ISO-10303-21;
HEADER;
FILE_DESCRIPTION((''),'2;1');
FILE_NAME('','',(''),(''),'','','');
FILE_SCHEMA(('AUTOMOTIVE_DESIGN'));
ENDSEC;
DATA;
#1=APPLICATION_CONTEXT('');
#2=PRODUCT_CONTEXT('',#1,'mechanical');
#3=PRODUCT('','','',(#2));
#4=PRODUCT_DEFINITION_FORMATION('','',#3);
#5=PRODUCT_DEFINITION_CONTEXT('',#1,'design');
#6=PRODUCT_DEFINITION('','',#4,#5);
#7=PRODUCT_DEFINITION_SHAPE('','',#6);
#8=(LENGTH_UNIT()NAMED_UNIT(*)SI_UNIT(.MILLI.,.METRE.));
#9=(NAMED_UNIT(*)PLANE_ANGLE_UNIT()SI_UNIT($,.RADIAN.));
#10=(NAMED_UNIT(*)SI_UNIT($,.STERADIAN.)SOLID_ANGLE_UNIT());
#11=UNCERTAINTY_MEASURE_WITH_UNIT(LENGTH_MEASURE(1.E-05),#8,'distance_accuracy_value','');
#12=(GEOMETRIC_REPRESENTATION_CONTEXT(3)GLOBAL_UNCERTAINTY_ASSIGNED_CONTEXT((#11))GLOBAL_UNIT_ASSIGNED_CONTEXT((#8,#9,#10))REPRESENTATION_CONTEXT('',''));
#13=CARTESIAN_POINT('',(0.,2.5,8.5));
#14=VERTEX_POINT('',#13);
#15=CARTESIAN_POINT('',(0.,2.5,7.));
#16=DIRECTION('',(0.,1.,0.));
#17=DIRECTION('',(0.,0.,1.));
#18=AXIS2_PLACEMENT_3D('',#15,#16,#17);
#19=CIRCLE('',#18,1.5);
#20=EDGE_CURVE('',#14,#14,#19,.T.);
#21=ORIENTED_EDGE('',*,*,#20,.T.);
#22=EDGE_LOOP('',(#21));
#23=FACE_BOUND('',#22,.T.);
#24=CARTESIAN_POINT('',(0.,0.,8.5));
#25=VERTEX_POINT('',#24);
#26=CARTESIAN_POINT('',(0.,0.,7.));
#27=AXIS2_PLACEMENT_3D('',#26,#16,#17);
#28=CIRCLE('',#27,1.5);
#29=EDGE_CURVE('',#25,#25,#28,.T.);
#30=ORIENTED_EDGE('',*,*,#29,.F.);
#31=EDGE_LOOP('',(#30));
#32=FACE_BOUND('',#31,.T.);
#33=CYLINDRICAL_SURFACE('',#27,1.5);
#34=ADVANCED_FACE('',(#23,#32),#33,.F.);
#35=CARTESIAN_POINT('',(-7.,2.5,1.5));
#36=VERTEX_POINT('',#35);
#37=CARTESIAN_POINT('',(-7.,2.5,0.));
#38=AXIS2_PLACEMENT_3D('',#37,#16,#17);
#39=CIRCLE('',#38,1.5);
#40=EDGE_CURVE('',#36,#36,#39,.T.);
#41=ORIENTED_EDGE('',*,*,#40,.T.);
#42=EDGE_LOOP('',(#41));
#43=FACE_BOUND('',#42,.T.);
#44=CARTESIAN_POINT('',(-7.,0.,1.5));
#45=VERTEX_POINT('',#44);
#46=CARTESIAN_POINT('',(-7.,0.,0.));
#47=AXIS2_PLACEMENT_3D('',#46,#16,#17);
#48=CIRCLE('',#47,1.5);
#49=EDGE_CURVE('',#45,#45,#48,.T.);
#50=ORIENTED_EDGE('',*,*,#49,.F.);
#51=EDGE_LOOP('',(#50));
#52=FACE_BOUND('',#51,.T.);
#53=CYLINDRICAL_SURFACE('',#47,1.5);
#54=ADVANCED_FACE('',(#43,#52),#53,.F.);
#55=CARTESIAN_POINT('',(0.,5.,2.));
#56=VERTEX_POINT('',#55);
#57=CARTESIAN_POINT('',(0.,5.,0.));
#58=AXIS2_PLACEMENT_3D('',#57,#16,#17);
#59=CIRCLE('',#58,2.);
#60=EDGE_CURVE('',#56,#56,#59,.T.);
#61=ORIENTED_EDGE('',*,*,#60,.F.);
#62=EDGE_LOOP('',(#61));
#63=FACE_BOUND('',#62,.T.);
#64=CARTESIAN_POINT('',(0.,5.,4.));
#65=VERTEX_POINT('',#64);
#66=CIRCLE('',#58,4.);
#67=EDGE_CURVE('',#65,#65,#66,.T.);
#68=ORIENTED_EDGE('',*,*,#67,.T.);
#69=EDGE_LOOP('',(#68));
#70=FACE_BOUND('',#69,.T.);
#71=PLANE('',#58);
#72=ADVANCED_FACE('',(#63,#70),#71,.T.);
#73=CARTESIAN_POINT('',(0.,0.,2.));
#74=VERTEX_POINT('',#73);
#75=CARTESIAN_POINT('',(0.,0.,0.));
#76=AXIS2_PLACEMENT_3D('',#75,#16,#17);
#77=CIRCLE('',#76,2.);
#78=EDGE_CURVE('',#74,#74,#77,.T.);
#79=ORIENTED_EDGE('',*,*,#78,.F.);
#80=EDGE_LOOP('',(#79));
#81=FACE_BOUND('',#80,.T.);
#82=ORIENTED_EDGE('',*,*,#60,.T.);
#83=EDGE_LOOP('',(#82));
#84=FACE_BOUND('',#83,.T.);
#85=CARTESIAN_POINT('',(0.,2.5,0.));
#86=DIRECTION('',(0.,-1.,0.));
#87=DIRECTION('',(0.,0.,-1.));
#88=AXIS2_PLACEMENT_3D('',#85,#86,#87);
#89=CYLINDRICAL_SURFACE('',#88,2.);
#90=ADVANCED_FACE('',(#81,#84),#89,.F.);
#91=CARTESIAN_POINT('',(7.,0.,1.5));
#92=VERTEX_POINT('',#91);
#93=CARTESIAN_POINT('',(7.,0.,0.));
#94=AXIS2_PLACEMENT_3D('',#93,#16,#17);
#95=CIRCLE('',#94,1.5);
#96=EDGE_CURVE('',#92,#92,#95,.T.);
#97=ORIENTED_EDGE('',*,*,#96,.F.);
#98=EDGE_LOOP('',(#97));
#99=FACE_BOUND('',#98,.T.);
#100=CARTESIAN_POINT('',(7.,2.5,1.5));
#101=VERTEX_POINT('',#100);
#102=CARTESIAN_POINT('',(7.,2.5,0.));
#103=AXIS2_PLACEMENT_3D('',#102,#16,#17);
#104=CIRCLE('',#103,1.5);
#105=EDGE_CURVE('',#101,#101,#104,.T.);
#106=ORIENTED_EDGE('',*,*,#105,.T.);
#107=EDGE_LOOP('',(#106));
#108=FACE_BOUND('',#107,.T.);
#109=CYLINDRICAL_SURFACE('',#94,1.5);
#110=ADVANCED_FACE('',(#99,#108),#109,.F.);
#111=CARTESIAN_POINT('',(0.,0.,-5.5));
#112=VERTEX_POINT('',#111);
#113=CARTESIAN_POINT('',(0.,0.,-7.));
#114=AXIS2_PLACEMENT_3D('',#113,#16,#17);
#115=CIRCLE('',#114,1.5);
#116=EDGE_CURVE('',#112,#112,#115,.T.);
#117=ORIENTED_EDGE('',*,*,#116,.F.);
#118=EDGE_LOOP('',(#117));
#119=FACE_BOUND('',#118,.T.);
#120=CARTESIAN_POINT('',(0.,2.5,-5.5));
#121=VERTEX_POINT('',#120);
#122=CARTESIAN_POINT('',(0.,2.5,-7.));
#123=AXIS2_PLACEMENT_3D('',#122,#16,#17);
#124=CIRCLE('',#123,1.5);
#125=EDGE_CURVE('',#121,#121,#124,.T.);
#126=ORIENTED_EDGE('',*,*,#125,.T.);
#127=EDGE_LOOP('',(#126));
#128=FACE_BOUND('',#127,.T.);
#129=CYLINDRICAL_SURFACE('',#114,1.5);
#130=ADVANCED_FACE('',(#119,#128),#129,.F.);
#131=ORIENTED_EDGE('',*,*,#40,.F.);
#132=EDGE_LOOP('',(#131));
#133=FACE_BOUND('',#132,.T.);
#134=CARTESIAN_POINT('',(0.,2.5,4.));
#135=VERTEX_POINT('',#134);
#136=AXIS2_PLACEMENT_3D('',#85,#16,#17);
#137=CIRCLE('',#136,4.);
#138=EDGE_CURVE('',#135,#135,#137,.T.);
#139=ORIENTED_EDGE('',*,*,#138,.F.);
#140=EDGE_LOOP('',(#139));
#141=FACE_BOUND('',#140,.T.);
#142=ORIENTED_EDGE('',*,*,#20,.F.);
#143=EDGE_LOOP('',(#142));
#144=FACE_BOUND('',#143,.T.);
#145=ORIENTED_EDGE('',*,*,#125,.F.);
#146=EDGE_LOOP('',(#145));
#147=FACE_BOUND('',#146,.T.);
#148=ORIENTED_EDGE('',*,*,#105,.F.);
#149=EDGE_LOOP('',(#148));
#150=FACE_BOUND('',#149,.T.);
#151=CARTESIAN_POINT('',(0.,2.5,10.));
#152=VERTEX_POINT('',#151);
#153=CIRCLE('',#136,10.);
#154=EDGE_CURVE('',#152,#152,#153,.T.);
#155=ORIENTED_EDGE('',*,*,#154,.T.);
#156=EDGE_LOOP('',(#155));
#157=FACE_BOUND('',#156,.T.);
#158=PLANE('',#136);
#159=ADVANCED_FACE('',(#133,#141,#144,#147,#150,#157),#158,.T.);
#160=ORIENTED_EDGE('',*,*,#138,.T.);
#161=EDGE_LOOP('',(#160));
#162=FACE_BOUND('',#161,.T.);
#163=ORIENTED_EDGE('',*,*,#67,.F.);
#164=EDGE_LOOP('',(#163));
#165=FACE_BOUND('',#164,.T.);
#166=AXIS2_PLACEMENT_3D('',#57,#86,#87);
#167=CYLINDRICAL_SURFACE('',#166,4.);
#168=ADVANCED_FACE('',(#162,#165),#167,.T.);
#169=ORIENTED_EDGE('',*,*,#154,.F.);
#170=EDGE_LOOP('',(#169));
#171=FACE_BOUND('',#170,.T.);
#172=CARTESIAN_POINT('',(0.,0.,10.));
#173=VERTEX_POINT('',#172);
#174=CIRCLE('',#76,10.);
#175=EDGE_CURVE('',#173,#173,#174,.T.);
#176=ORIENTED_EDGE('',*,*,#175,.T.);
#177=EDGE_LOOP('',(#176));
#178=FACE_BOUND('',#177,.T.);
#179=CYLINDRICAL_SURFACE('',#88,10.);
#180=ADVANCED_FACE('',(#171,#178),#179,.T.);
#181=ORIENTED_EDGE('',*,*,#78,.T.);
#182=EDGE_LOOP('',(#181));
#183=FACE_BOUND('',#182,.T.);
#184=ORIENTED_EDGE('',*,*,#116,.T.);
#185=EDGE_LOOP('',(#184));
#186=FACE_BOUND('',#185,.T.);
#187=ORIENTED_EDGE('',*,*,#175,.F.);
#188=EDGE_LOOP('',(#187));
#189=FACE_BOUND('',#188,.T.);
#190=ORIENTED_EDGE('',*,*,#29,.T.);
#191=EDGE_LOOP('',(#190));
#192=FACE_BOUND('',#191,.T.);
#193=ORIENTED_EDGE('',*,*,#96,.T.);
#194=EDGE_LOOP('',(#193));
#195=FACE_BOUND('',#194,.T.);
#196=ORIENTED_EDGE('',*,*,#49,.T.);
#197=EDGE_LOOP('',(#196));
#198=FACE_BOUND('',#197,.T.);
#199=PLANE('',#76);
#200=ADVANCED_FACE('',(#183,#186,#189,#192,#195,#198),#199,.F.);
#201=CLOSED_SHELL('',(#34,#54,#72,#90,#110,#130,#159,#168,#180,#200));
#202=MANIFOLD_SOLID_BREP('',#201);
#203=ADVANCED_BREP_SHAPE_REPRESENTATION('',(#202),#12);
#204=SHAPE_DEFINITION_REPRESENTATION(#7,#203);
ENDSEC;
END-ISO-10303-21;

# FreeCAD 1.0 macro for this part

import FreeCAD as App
import Part
import Sketcher

V = App.Vector
Q = App.Units.Quantity

doc = App.newDocument("Part")
body = doc.addObject("PartDesign::Body", "Body")

sketch1 = body.newObject("Sketcher::SketchObject", "Sketch")
sketch1.AttachmentSupport = (doc.getObject("XZ_Plane"), [""])
sketch1.MapMode = "FlatFace"
sketch1.addGeometry(Part.Circle(V(0, 0, 0), V(0, 0, 1), 10), False)
sketch1.addGeometry(Part.Circle(V(0, 0, 0), V(0, 0, 1), 2), False)
sketch1.addConstraint(Sketcher.Constraint("Coincident", 0, 3, -1, 1))
sketch1.addConstraint(Sketcher.Constraint("Coincident", 1, 3, -1, 1))
sketch1.addConstraint(Sketcher.Constraint("Diameter", 0, Q("20 mm")))
sketch1.addConstraint(Sketcher.Constraint("Diameter", 1, Q("4 mm")))
pad1 = body.newObject("PartDesign::Pad", "Pad")
pad1.Profile = sketch1
pad1.Length = 2.5
pad1.Reversed = True

sketch2 = body.newObject("Sketcher::SketchObject", "Sketch001")
sketch2.AttachmentSupport = (doc.getObject("XZ_Plane"), [""])
sketch2.MapMode = "FlatFace"
sketch2.AttachmentOffset = App.Placement(V(0, 0, -2.5), App.Rotation())
sketch2.addGeometry(Part.Circle(V(0, 0, 0), V(0, 0, 1), 4), False)
sketch2.addGeometry(Part.Circle(V(0, 0, 0), V(0, 0, 1), 2), False)
sketch2.addConstraint(Sketcher.Constraint("Coincident", 0, 3, -1, 1))
sketch2.addConstraint(Sketcher.Constraint("Coincident", 1, 3, -1, 1))
sketch2.addConstraint(Sketcher.Constraint("Diameter", 0, Q("8 mm")))
sketch2.addConstraint(Sketcher.Constraint("Diameter", 1, Q("4 mm")))
pad2 = body.newObject("PartDesign::Pad", "Pad001")
pad2.Profile = sketch2
pad2.Length = 2.5
pad2.Reversed = True

sketch3 = body.newObject("Sketcher::SketchObject", "Sketch002")
sketch3.AttachmentSupport = (doc.getObject("XZ_Plane"), [""])
sketch3.MapMode = "FlatFace"
sketch3.AttachmentOffset = App.Placement(V(0, 0, -2.5), App.Rotation())
sketch3.addGeometry(Part.Circle(V(0, -7, 0), V(0, 0, 1), 1.5), False)
sketch3.addGeometry(Part.Circle(V(7, 0, 0), V(0, 0, 1), 1.5), False)
sketch3.addGeometry(Part.Circle(V(0, 7, 0), V(0, 0, 1), 1.5), False)
sketch3.addGeometry(Part.Circle(V(-7, 0, 0), V(0, 0, 1), 1.5), False)
sketch3.addConstraint(Sketcher.Constraint("Equal", 0, 1))
sketch3.addConstraint(Sketcher.Constraint("Equal", 1, 2))
sketch3.addConstraint(Sketcher.Constraint("Equal", 2, 3))
sketch3.addConstraint(Sketcher.Constraint("Symmetric", 0, 3, 2, 3, -1, 1))
sketch3.addConstraint(Sketcher.Constraint("Symmetric", 1, 3, 3, 3, -1, 1))
sketch3.addConstraint(Sketcher.Constraint("PointOnObject", 0, 3, -2))
sketch3.addConstraint(Sketcher.Constraint("PointOnObject", 1, 3, -1))
sketch3.addConstraint(Sketcher.Constraint("Diameter", 0, Q("3 mm")))
sketch3.addConstraint(Sketcher.Constraint("DistanceY", 0, 3, -1, 1, Q("7 mm")))
sketch3.addConstraint(Sketcher.Constraint("DistanceX", -1, 1, 1, 3, Q("7 mm")))
pocket1 = body.newObject("PartDesign::Pocket", "Pocket")
pocket1.Profile = sketch3
pocket1.Length = 2.5
pocket1.Reversed = True

doc.recompute()
